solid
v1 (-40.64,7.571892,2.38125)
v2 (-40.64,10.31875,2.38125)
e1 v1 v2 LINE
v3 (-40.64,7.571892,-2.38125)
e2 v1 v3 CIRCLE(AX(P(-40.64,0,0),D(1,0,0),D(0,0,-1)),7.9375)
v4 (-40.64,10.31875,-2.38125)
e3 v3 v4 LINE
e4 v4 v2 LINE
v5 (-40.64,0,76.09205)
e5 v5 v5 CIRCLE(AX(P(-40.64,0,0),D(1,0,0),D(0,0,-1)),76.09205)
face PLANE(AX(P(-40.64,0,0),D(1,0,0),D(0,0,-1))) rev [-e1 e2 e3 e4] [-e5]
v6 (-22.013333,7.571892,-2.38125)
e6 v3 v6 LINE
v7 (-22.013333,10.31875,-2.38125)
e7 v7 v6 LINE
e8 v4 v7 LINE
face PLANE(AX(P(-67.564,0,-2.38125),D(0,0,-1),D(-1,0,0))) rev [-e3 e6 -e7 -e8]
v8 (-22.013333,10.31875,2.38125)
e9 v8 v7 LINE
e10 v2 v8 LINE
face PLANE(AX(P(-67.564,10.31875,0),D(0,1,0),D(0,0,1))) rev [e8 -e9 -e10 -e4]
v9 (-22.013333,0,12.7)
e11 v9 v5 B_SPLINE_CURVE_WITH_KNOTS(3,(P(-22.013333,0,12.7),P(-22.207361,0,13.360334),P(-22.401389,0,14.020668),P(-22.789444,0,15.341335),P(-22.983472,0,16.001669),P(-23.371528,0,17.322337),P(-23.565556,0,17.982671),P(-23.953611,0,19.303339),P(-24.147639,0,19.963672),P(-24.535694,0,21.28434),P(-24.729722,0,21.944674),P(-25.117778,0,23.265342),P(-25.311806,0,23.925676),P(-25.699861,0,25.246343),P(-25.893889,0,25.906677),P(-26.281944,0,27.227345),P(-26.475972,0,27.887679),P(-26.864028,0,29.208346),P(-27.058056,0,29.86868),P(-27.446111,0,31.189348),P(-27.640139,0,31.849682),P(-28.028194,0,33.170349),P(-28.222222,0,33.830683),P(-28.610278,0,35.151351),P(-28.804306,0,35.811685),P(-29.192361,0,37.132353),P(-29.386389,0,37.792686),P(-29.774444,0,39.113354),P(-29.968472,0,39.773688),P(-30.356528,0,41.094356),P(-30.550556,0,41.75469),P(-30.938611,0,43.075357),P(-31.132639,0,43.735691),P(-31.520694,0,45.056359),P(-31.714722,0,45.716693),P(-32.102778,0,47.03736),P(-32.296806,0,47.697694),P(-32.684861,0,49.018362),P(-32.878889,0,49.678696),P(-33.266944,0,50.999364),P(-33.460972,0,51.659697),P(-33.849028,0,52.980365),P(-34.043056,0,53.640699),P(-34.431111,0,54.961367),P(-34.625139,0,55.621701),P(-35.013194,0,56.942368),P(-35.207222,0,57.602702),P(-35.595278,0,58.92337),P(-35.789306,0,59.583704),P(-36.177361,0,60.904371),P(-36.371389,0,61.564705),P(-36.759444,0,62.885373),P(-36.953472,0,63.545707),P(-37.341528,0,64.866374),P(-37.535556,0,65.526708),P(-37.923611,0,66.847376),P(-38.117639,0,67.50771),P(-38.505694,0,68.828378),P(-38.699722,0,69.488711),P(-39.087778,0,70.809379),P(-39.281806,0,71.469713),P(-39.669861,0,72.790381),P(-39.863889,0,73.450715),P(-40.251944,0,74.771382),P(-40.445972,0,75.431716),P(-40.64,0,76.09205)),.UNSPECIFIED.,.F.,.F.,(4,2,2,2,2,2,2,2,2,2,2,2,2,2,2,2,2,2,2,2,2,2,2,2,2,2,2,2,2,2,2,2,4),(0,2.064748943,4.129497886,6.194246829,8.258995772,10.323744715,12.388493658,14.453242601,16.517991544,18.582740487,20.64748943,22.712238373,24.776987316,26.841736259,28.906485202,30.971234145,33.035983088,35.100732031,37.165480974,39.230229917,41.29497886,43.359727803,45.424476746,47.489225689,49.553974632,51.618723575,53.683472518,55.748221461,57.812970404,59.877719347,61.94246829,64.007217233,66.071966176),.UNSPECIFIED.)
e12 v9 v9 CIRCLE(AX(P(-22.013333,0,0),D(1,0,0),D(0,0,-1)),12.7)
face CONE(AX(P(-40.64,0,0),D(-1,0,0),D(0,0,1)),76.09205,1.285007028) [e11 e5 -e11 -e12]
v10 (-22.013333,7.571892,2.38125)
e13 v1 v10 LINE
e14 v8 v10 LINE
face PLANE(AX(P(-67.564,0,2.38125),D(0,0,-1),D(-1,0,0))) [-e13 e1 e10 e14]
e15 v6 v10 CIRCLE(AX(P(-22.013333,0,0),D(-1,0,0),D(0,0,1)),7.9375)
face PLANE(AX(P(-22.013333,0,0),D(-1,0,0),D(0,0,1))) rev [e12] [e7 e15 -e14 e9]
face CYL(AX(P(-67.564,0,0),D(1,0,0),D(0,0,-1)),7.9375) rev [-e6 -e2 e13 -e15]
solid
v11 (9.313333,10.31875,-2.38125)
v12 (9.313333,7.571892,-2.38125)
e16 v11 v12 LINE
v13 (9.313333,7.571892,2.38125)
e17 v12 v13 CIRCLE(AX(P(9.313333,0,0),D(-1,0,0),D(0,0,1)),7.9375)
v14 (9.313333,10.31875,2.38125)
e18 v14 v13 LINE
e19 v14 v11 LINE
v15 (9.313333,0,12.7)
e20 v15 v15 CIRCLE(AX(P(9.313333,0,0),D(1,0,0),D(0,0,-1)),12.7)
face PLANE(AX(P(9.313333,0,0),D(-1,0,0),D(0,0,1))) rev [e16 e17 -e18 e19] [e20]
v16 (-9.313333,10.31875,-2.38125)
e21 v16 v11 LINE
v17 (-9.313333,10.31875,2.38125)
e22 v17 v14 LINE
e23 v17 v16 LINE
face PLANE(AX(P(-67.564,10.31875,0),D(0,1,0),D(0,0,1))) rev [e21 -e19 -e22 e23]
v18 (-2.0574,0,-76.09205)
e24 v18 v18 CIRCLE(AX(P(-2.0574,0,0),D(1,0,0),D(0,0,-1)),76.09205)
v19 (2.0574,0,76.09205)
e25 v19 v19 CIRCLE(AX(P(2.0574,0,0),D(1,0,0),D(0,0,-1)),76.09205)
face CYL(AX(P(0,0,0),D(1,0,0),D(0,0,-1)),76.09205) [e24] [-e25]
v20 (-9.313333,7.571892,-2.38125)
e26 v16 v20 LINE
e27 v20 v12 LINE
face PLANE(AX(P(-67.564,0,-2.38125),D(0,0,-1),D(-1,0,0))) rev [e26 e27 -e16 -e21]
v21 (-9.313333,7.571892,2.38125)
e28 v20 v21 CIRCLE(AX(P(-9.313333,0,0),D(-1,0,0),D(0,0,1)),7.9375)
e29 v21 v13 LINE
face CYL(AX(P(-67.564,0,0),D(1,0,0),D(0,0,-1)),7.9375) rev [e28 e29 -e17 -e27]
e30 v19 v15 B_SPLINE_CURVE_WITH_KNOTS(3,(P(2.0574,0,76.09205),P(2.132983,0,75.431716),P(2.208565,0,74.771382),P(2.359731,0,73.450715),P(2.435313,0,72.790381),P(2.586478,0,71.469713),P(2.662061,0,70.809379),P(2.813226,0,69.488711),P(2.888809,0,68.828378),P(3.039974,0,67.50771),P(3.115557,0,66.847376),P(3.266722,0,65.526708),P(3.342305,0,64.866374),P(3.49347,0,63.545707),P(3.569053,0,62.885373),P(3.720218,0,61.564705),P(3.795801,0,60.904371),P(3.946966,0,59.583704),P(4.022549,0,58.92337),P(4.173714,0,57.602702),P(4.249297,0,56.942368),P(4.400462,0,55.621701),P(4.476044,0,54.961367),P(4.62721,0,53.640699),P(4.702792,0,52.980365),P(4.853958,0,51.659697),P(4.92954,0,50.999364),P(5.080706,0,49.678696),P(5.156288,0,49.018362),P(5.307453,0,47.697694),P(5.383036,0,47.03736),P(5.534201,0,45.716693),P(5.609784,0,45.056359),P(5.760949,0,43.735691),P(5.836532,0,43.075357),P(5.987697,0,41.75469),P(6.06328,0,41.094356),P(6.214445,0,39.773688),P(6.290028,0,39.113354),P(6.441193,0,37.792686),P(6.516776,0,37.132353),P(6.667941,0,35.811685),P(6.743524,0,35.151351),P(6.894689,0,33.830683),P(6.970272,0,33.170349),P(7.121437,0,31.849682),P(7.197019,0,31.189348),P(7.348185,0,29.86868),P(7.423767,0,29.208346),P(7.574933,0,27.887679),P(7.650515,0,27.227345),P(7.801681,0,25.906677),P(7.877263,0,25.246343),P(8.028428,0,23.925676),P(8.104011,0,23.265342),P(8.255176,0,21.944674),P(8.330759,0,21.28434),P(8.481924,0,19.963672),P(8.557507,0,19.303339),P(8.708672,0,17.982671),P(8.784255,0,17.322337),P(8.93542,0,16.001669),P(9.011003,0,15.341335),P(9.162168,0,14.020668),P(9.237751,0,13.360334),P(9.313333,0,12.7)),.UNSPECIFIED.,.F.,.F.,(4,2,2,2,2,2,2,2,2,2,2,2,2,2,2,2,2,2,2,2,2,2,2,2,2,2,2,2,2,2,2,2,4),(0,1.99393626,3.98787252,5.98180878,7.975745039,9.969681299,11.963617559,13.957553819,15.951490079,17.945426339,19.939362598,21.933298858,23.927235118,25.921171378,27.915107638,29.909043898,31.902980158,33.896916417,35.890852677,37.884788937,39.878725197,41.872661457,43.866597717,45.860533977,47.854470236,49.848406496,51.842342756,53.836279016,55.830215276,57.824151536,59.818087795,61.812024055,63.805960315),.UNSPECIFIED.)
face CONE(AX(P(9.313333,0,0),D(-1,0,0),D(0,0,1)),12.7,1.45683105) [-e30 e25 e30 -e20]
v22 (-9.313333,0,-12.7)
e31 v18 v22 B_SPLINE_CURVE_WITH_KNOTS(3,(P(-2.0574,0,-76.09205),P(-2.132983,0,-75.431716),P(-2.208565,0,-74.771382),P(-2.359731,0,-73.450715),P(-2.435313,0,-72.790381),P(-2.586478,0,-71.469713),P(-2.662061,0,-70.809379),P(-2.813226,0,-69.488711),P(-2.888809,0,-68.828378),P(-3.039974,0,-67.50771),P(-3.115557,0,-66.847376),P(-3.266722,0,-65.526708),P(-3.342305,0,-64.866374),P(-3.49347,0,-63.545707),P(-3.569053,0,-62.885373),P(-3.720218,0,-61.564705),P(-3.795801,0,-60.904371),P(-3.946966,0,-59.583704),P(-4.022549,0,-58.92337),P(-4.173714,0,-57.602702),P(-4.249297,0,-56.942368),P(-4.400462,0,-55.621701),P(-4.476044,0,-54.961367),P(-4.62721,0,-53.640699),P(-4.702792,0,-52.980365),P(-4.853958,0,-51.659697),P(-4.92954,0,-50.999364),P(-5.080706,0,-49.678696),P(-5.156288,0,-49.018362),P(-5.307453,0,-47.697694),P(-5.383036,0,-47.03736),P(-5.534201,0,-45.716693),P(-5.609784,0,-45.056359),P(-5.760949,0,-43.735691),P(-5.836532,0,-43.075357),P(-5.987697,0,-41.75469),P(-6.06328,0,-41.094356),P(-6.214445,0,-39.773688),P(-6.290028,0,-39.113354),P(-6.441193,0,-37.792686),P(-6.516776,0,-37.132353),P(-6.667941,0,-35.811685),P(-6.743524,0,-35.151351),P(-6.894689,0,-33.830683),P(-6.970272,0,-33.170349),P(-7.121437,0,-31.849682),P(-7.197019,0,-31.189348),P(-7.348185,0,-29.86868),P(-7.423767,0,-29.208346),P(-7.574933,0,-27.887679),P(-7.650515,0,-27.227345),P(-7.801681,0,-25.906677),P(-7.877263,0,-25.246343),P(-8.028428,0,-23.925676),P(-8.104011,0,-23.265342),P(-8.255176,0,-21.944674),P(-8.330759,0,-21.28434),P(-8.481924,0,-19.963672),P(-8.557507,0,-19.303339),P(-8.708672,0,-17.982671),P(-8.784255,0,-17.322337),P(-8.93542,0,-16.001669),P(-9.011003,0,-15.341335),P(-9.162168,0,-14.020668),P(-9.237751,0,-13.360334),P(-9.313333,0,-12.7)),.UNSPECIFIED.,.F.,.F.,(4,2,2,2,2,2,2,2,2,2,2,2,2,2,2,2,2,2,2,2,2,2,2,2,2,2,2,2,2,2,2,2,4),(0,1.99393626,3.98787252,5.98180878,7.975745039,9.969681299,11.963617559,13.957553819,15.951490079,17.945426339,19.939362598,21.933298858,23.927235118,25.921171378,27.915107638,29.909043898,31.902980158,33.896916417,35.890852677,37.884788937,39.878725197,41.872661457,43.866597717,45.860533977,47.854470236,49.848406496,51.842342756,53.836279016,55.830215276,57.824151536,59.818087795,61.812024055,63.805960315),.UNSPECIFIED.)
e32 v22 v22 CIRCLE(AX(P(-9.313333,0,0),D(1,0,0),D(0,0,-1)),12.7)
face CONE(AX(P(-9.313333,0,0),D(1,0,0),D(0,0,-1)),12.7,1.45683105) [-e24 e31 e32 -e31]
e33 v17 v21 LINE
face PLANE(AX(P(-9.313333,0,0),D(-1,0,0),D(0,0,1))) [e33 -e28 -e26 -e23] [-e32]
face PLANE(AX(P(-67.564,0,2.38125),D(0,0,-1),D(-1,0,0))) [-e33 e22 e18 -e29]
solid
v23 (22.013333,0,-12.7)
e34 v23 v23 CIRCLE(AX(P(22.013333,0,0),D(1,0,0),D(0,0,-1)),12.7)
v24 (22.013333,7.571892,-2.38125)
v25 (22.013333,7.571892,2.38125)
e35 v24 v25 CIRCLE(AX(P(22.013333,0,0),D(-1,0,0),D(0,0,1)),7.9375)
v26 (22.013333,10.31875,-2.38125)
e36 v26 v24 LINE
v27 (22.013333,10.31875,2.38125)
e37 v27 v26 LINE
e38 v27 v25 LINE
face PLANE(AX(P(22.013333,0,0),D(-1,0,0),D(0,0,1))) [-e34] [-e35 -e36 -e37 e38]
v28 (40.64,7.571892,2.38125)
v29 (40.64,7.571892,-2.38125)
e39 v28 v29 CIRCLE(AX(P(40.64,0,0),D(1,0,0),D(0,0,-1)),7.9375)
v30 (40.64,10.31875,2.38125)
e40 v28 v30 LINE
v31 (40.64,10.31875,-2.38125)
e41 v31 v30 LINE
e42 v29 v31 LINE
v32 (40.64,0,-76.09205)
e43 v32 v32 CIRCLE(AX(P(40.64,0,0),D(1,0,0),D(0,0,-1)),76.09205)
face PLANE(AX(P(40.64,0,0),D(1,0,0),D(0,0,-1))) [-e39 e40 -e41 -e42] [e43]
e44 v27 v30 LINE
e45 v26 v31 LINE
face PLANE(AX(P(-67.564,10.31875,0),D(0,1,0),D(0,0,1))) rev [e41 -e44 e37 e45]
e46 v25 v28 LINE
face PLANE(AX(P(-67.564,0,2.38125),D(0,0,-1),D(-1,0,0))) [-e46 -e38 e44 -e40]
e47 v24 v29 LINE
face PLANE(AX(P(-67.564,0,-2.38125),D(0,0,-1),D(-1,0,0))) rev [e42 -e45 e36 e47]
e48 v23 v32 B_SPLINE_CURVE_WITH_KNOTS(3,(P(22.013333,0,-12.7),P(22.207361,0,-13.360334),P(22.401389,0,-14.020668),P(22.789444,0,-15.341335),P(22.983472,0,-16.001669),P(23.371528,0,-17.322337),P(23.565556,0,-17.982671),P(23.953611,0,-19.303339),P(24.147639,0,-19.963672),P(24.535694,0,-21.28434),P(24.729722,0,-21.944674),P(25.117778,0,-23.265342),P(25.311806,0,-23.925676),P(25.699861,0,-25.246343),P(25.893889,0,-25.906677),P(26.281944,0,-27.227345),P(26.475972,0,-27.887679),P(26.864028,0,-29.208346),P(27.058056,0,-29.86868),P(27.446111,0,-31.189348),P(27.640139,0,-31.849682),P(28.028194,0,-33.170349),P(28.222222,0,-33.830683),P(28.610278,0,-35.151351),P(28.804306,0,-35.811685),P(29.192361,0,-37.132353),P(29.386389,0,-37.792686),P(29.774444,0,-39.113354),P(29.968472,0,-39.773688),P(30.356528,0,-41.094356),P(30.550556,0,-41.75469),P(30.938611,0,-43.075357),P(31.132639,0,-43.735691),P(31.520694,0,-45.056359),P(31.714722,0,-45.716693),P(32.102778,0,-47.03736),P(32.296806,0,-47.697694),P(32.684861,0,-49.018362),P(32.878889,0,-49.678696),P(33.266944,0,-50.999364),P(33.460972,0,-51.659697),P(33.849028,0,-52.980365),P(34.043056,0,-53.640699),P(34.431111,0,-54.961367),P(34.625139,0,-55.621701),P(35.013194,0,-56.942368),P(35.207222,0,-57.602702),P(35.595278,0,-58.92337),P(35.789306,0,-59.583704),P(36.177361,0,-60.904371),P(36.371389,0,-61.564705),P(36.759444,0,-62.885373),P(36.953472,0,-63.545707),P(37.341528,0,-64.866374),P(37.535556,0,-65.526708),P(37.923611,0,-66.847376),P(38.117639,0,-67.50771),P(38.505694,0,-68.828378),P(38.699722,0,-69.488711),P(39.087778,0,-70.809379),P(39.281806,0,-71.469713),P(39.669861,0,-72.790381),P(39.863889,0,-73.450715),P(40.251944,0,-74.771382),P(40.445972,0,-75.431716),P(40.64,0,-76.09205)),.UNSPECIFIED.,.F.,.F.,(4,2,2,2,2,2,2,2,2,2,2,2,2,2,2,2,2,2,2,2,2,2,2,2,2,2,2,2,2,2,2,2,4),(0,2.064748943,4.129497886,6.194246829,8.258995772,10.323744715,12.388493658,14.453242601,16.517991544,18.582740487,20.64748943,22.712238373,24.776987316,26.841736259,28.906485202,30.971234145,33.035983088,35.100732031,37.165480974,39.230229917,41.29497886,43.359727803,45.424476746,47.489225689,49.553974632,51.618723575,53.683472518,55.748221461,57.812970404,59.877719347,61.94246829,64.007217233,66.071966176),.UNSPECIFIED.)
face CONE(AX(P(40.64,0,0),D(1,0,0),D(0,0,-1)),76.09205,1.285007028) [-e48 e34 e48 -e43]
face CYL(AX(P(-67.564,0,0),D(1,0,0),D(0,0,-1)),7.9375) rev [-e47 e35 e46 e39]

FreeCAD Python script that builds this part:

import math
import FreeCAD as App
import Part
import Sketcher

V = App.Vector
Q = App.Units.Quantity

doc = App.newDocument("Part")
params = doc.addObject("Spreadsheet::Sheet", "Params")
for row, (alias, value) in enumerate([
    ("sketch1_height", "0.25 in"),
    ("sketch1_width", "0.162 in"),
    ("revolution_angle", "360 deg"),
    ("sketch2_radius", "0.3125 in"),
    ("sketch2_height", "0.1875 in"),
    ("pocket1_length", "4.26 in"),
], start=1):
    params.set(f"A{row}", alias)
    params.set(f"B{row}", "=" + value)
    params.setAlias(f"B{row}", alias)

body = doc.addObject("PartDesign::Body", "Body")
body.AllowCompound = True

# Sketch on XY plane
sketch1 = body.newObject("Sketcher::SketchObject", "Sketch")
sketch1.AttachmentSupport = (doc.getObject("XY_Plane"), [""])
sketch1.MapMode = "FlatFace"
sketch1.addGeometry([
    Part.LineSegment(V(-22, 6.3, 0), V(-22, 12.7, 0)),  # 0
    Part.LineSegment(V(-22, 12.7, 0), V(-40.6, 76.1, 0)),  # 1
    Part.LineSegment(V(-40.6, 76.1, 0), V(-40.6, 6.3, 0)),  # 2
    Part.LineSegment(V(-40.6, 6.3, 0), V(-22, 6.3, 0)),  # 3
    Part.LineSegment(V(-2.1, 76.1, 0), V(-9.3, 12.7, 0)),  # 4
    Part.LineSegment(V(-9.3, 12.7, 0), V(-9.3, 6.3, 0)),  # 5
    Part.LineSegment(V(-9.3, 6.3, 0), V(9.3, 6.3, 0)),  # 6
    Part.LineSegment(V(9.3, 6.3, 0), V(9.3, 12.7, 0)),  # 7
    Part.LineSegment(V(9.3, 12.7, 0), V(2.1, 76.1, 0)),  # 8
    Part.LineSegment(V(2.1, 76.1, 0), V(-2.1, 76.1, 0)),  # 9
    Part.LineSegment(V(22, 6.3, 0), V(40.6, 6.3, 0)),  # 10
    Part.LineSegment(V(40.6, 6.3, 0), V(40.6, 76.1, 0)),  # 11
    Part.LineSegment(V(40.6, 76.1, 0), V(22, 12.7, 0)),  # 12
    Part.LineSegment(V(22, 12.7, 0), V(22, 6.3, 0)),  # 13
], False)
sketch1.addConstraint([
    Sketcher.Constraint("Coincident", 0, 2, 1, 1),
    Sketcher.Constraint("Coincident", 1, 2, 2, 1),
    Sketcher.Constraint("Coincident", 2, 2, 3, 1),
    Sketcher.Constraint("Coincident", 3, 2, 0, 1),
    Sketcher.Constraint("Coincident", 4, 2, 5, 1),
    Sketcher.Constraint("Coincident", 5, 2, 6, 1),
    Sketcher.Constraint("Coincident", 6, 2, 7, 1),
    Sketcher.Constraint("Coincident", 7, 2, 8, 1),
    Sketcher.Constraint("Coincident", 8, 2, 9, 1),
    Sketcher.Constraint("Coincident", 9, 2, 4, 1),
    Sketcher.Constraint("Coincident", 10, 2, 11, 1),
    Sketcher.Constraint("Coincident", 11, 2, 12, 1),
    Sketcher.Constraint("Coincident", 12, 2, 13, 1),
    Sketcher.Constraint("Coincident", 13, 2, 10, 1),
    Sketcher.Constraint("Vertical", 0),
    Sketcher.Constraint("Vertical", 2),
    Sketcher.Constraint("Horizontal", 3),
    Sketcher.Constraint("Vertical", 5),
    Sketcher.Constraint("Horizontal", 6),
    Sketcher.Constraint("Vertical", 7),
    Sketcher.Constraint("Horizontal", 9),
    Sketcher.Constraint("Horizontal", 10),
    Sketcher.Constraint("Vertical", 11),
    Sketcher.Constraint("Vertical", 13),
    Sketcher.Constraint("Symmetric", 4, 2, 7, 2, -2),
    Sketcher.Constraint("Symmetric", 2, 2, 10, 2, -2),
    Sketcher.Constraint("Symmetric", 0, 2, 12, 2, -2),
    Sketcher.Constraint("Horizontal", 0, 2, 4, 2),
    Sketcher.Constraint("Horizontal", 3, 2, 5, 2),
    Sketcher.Constraint("Horizontal", 1, 2, 8, 2),
    Sketcher.Constraint("Horizontal", 9, 2, 11, 2),
    Sketcher.Constraint("Equal", 3, 6),
    Sketcher.Constraint("Equal", 4, 8),
    Sketcher.Constraint("DistanceY", 0, 1, 0, 2, Q("0.25 in")),
    Sketcher.Constraint("DistanceY", -1, 1, 0, 2, Q("0.5 in")),
    Sketcher.Constraint("DistanceX", 1, 2, -1, 1, Q("1.6 in")),
    Sketcher.Constraint("DistanceX", 0, 2, 4, 2, Q("0.5 in")),
    Sketcher.Constraint("DistanceX", 9, 2, 9, 1, Q("0.162 in")),
    Sketcher.Constraint("DistanceY", 2, 2, 2, 1, Q("69.74205 mm")),
])
sketch1.setExpression("Constraints[33]", "Params.sketch1_height")
sketch1.setExpression("Constraints[37]", "Params.sketch1_width")
revolution = body.newObject("PartDesign::Revolution", "Revolution")
revolution.Profile = sketch1
revolution.ReferenceAxis = (sketch1, ["H_Axis"])
revolution.setExpression("Angle", "Params.revolution_angle")

# Sketch on YZ plane
sketch2 = body.newObject("Sketcher::SketchObject", "Sketch001")
sketch2.AttachmentSupport = (doc.getObject("YZ_Plane"), [""])
sketch2.MapMode = "FlatFace"
sketch2.AttachmentOffset = App.Placement(V(0, 0, -2.66 * 25.4), App.Rotation())
sketch2.addGeometry([
    Part.ArcOfCircle(Part.Circle(V(0, 0, 0), V(0, 0, 1), 7.9), math.radians(17), math.radians(270)),  # 0
    Part.ArcOfCircle(Part.Circle(V(0, 0, 0), V(0, 0, 1), 7.9), math.radians(-90), math.radians(-17)),  # 1
    Part.LineSegment(V(7.6, -2.4, 0), V(10.3, -2.4, 0)),  # 2
    Part.LineSegment(V(10.3, -2.4, 0), V(10.3, 2.4, 0)),  # 3
    Part.LineSegment(V(10.3, 2.4, 0), V(7.6, 2.4, 0)),  # 4
], False)
sketch2.addConstraint([
    Sketcher.Constraint("Tangent", 0, 2, 1, 1),
    Sketcher.Constraint("Coincident", 1, 2, 2, 1),
    Sketcher.Constraint("Coincident", 2, 2, 3, 1),
    Sketcher.Constraint("Coincident", 3, 2, 4, 1),
    Sketcher.Constraint("Coincident", 4, 2, 0, 1),
    Sketcher.Constraint("Horizontal", 2),
    Sketcher.Constraint("Vertical", 3),
    Sketcher.Constraint("Horizontal", 4),
    Sketcher.Constraint("Coincident", 0, 3, -1, 1),
    Sketcher.Constraint("Equal", 0, 1),
    Sketcher.Constraint("PointOnObject", 0, 2, -2),
    Sketcher.Constraint("Vertical", 1, 2, 4, 2),
    Sketcher.Constraint("Radius", 0, Q("0.3125 in")),
    Sketcher.Constraint("DistanceY", 3, 1, 3, 2, Q("0.1875 in")),
    Sketcher.Constraint("DistanceX", -1, 1, 2, 2, Q("0.40625 in")),
])
sketch2.setExpression("Constraints[12]", "Params.sketch2_radius")
sketch2.setExpression("Constraints[13]", "Params.sketch2_height")
pocket1 = body.newObject("PartDesign::Pocket", "Pocket")
pocket1.Profile = sketch2
pocket1.setExpression("Length", "Params.pocket1_length")
pocket1.Reversed = True

doc.recompute()
